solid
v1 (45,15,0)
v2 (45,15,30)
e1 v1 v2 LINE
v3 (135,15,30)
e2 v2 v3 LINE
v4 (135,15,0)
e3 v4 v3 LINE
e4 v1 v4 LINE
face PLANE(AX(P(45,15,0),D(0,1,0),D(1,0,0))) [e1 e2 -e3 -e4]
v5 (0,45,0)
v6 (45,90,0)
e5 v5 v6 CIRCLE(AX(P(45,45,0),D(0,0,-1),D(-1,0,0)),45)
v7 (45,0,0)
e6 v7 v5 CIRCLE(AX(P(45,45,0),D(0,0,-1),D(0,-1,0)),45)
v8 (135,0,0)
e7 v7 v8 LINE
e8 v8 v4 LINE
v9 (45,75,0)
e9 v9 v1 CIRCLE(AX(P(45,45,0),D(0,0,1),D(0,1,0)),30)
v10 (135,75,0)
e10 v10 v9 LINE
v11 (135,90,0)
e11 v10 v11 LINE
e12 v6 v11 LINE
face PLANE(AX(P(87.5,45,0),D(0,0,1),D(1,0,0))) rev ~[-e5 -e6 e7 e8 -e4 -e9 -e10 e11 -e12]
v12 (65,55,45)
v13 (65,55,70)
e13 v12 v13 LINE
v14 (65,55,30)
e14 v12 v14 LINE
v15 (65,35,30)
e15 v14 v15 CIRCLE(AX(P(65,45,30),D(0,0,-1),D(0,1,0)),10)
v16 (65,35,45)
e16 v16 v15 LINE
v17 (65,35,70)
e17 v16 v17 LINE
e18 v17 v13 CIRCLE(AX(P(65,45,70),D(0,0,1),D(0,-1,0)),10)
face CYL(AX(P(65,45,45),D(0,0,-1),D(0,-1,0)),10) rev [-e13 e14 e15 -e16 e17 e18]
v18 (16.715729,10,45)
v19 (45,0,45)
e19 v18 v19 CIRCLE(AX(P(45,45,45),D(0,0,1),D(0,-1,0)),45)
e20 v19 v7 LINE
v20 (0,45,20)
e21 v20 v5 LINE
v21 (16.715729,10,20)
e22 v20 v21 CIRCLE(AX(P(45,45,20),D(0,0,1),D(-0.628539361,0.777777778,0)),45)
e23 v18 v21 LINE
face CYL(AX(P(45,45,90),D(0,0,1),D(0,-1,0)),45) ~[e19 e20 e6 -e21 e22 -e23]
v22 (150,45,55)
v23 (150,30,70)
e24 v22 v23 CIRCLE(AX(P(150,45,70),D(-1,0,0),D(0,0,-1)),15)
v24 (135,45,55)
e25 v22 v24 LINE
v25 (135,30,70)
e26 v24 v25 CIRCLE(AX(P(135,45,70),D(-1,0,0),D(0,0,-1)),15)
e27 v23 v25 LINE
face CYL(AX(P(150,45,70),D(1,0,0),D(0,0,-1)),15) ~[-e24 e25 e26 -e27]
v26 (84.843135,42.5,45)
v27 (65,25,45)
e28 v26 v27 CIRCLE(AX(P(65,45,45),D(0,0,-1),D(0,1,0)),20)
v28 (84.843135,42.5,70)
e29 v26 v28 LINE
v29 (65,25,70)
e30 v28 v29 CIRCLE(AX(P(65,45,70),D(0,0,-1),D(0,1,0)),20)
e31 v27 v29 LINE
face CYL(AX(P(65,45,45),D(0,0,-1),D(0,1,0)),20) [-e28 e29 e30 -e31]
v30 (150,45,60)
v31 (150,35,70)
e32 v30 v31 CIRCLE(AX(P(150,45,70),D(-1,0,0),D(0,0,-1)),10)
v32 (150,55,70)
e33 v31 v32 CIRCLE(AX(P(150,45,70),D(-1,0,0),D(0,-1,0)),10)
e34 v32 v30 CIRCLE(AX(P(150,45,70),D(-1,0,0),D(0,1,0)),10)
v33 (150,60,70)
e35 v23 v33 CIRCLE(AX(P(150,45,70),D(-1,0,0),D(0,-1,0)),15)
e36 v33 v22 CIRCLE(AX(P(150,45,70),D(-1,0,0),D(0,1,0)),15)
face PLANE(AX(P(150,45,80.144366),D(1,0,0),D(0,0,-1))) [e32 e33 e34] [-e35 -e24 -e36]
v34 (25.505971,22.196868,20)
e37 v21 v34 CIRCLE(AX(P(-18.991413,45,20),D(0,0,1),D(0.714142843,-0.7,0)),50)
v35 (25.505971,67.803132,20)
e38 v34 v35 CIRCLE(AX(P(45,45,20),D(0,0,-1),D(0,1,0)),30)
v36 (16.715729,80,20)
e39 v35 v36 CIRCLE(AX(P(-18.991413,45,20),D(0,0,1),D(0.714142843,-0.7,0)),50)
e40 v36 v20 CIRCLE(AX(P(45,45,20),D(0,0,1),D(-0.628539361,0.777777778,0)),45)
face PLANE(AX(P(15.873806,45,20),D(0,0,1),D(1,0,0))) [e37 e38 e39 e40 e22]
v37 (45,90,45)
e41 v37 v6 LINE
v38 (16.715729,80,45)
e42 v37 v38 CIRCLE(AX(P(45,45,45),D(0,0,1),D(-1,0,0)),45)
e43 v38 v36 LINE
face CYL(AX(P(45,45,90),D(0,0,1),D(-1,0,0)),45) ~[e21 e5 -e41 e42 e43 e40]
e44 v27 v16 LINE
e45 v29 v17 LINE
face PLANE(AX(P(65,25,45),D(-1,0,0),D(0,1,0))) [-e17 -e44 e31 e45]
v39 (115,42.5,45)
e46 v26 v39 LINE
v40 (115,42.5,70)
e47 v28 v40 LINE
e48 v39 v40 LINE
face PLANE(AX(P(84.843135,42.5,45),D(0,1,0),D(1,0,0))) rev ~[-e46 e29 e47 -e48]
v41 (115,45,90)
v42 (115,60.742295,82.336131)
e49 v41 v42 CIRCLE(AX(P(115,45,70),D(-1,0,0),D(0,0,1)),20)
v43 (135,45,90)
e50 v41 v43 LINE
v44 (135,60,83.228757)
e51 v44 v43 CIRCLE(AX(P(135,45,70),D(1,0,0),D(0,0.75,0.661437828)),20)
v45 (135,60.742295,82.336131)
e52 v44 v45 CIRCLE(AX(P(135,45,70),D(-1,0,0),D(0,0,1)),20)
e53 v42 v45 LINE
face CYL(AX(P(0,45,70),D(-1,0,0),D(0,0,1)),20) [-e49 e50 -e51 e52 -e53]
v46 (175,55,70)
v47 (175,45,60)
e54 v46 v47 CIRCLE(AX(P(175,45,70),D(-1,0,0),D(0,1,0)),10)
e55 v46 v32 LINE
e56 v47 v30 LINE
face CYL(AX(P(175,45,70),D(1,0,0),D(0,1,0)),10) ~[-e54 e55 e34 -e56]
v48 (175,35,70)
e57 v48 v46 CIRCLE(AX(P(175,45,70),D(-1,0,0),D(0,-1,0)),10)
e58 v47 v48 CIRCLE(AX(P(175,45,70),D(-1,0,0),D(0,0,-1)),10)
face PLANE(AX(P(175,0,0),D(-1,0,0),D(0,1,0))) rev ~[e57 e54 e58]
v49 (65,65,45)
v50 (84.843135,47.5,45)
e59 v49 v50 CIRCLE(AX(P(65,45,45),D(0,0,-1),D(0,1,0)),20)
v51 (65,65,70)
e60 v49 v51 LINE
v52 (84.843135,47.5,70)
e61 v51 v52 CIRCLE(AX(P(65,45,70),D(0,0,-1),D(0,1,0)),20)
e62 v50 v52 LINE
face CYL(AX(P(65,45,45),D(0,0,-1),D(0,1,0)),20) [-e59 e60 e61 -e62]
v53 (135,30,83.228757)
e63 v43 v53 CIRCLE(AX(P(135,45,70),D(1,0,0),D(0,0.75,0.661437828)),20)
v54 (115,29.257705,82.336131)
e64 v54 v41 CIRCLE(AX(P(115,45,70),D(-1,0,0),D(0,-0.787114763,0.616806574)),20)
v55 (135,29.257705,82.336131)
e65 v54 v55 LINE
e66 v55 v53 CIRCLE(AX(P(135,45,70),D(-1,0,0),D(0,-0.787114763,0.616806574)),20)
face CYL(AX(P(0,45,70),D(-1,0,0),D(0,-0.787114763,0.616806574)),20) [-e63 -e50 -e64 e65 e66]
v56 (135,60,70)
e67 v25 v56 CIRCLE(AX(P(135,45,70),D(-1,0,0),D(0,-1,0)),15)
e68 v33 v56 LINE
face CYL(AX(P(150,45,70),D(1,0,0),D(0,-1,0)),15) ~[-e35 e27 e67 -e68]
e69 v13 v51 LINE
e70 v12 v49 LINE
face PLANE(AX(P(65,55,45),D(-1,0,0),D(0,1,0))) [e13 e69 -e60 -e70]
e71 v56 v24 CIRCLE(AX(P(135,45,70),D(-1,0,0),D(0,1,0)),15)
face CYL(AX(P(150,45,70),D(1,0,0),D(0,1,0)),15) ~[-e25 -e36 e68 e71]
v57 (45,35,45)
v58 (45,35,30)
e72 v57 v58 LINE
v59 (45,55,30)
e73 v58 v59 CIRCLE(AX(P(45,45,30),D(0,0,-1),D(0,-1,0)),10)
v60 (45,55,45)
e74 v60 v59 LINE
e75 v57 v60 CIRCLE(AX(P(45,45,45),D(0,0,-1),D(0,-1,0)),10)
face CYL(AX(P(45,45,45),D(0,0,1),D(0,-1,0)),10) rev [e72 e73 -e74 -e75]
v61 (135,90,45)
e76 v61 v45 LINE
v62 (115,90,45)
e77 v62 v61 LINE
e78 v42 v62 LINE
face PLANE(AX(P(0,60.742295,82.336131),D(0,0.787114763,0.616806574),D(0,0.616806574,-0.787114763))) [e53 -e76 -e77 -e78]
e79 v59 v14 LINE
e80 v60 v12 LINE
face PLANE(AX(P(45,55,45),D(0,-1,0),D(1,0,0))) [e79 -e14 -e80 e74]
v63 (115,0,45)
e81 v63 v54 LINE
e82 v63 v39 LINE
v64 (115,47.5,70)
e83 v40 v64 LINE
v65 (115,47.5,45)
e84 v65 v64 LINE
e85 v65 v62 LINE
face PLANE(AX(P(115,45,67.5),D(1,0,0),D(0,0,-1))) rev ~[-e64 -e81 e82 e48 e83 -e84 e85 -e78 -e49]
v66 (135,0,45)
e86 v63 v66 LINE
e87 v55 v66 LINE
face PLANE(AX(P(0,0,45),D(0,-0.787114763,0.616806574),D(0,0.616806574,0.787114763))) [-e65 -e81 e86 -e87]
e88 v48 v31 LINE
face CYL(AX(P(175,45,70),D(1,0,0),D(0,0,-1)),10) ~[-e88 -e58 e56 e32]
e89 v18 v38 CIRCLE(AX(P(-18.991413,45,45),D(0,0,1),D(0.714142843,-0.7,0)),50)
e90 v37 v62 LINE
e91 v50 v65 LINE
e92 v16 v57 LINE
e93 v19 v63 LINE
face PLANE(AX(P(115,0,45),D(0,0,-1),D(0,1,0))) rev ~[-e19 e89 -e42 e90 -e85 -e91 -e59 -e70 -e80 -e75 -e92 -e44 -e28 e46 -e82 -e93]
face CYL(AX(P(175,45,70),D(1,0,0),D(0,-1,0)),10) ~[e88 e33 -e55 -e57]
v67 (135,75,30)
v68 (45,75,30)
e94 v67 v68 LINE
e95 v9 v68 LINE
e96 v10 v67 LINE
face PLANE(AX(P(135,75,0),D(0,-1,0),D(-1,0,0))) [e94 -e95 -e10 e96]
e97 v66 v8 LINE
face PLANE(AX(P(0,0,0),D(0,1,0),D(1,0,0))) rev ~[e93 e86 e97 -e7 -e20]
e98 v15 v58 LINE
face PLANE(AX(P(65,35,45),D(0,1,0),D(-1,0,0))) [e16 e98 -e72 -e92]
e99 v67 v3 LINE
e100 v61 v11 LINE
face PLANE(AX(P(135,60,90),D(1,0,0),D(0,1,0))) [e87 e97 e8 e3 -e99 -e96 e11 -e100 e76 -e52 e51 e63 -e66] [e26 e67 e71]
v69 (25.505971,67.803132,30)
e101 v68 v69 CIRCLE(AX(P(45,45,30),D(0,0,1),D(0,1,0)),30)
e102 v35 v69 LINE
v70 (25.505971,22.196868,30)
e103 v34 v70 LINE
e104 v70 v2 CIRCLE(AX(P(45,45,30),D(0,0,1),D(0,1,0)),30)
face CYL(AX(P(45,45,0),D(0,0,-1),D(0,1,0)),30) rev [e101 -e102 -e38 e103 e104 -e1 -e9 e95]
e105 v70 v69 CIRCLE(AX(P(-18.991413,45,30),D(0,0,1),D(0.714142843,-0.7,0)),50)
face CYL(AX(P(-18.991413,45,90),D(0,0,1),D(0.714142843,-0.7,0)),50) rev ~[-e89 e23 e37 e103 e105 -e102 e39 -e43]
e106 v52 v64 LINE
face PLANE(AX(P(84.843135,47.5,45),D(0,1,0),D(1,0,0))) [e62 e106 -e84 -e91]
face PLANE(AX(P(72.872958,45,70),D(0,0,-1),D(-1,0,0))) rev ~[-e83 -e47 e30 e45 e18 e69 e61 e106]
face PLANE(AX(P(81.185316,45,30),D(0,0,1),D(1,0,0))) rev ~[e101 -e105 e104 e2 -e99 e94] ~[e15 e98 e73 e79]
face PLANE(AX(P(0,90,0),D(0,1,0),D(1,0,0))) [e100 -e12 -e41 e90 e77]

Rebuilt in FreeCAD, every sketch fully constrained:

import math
import FreeCAD as App
import Part
import Sketcher

doc = App.newDocument("Part")
params = doc.addObject("Spreadsheet::Sheet", "Params")
for row, (alias, value) in enumerate([
    ("sketch1_width", "175 mm"),
    ("sketch1_height", "90 mm"),
    ("pad1_length", "90 mm"),
    ("sketch2_radius", "45 mm"),
    ("pocket1_length", "90 mm"),
    ("sketch3_width", "40 mm"),
    ("sketch3_height", "30 mm"),
    ("pocket2_length", "90 mm"),
    ("sketch4_width", "25 mm"),
    ("sketch4_height", "5 mm"),
    ("pocket3_length", "90 mm"),
    ("sketch5_radius", "50 mm"),
    ("sketch5_radius2", "45 mm"),
    ("pocket4_length", "70 mm"),
    ("sketch6_radius", "20 mm"),
    ("sketch6_width", "45 mm"),
    ("pocket5_length", "308 mm"),
    ("sketch7_radius", "30 mm"),
    ("sketch7_width", "90 mm"),
    ("pocket6_length", "30 mm"),
    ("sketch8_radius", "20 mm"),
    ("sketch8_radius2", "10 mm"),
    ("sketch8_height", "70 mm"),
    ("pocket7_length", "25 mm"),
    ("sketch9_radius", "20 mm"),
    ("sketch9_radius2", "15 mm"),
    ("sketch9_height", "70 mm"),
    ("pocket8_length", "15 mm"),
    ("sketch10_width", "90 mm"),
    ("sketch10_height", "45 mm"),
    ("pocket9_length", "154 mm"),
    ("sketch11_radius", "10 mm"),
    ("sketch11_radius2", "20 mm"),
    ("pad2_length", "25 mm"),
    ("sketch12_radius", "10 mm"),
    ("sketch12_width", "20 mm"),
    ("pocket10_length", "15 mm"),
    ("sketch13_height", "5 mm"),
    ("pad3_length", "25 mm"),
], start=1):
    params.set(f"A{row}", alias)
    params.set(f"B{row}", "=" + value)
    params.setAlias(f"B{row}", alias)

body = doc.addObject("PartDesign::Body", "Body")

# Sketch on XY plane
sketch1 = doc.addObject("Sketcher::SketchObject", "Sketch")
body.addObject(sketch1)
sketch1.AttachmentSupport = (doc.XY_Plane, [""])
sketch1.MapMode = "FlatFace"
sketch1.addGeometry(Part.LineSegment(App.Vector(0, 90, 0), App.Vector(0, 0, 0)), False)
sketch1.addGeometry(Part.LineSegment(App.Vector(0, 0, 0), App.Vector(175, 0, 0)), False)
sketch1.addGeometry(Part.LineSegment(App.Vector(175, 0, 0), App.Vector(175, 90, 0)), False)
sketch1.addGeometry(Part.LineSegment(App.Vector(175, 90, 0), App.Vector(0, 90, 0)), False)
sketch1.addConstraint(Sketcher.Constraint("Coincident", 0, 2, 1, 1))
sketch1.addConstraint(Sketcher.Constraint("Coincident", 1, 2, 2, 1))
sketch1.addConstraint(Sketcher.Constraint("Coincident", 2, 2, 3, 1))
sketch1.addConstraint(Sketcher.Constraint("Coincident", 3, 2, 0, 1))
sketch1.addConstraint(Sketcher.Constraint("Vertical", 0))
sketch1.addConstraint(Sketcher.Constraint("Horizontal", 1))
sketch1.addConstraint(Sketcher.Constraint("Vertical", 2))
sketch1.addConstraint(Sketcher.Constraint("Horizontal", 3))
sketch1.addConstraint(Sketcher.Constraint("Coincident", 0, 2, -1, 1))
sketch1.addConstraint(Sketcher.Constraint("DistanceX", 1, 1, 1, 2, 175.0))
sketch1.addConstraint(Sketcher.Constraint("DistanceY", 0, 2, 0, 1, 90.0))
sketch1.setExpression("Constraints[9]", "Params.sketch1_width")
sketch1.setExpression("Constraints[10]", "Params.sketch1_height")
pad1 = doc.addObject("PartDesign::Pad", "Pad")
body.addObject(pad1)
pad1.Profile = sketch1
pad1.setExpression("Length", "Params.pad1_length")

# Sketch on XY plane
sketch2 = doc.addObject("Sketcher::SketchObject", "Sketch001")
body.addObject(sketch2)
sketch2.AttachmentSupport = (doc.XY_Plane, [""])
sketch2.MapMode = "FlatFace"
sketch2.AttachmentOffset = App.Placement(App.Vector(0, 0, 90), App.Rotation())
sketch2.addGeometry(Part.LineSegment(App.Vector(45, 90, 0), App.Vector(0, 90, 0)), False)
sketch2.addGeometry(Part.LineSegment(App.Vector(0, 90, 0), App.Vector(0, 45, 0)), False)
sketch2.addGeometry(Part.ArcOfCircle(Part.Circle(App.Vector(45, 45, 0), App.Vector(0, 0, 1), 45), math.radians(90), math.radians(180)), False)
sketch2.addGeometry(Part.ArcOfCircle(Part.Circle(App.Vector(45, 45, 0), App.Vector(0, 0, 1), 45), math.radians(-180), math.radians(-90)), False)
sketch2.addGeometry(Part.LineSegment(App.Vector(0, 45, 0), App.Vector(0, 0, 0)), False)
sketch2.addGeometry(Part.LineSegment(App.Vector(0, 0, 0), App.Vector(45, 0, 0)), False)
sketch2.addConstraint(Sketcher.Constraint("Coincident", 0, 2, 1, 1))
sketch2.addConstraint(Sketcher.Constraint("Tangent", 1, 2, 2, 2))
sketch2.addConstraint(Sketcher.Constraint("Tangent", 2, 1, 0, 1))
sketch2.addConstraint(Sketcher.Constraint("Tangent", 3, 1, 4, 1))
sketch2.addConstraint(Sketcher.Constraint("Coincident", 4, 2, 5, 1))
sketch2.addConstraint(Sketcher.Constraint("Tangent", 5, 2, 3, 2))
sketch2.addConstraint(Sketcher.Constraint("Horizontal", 0))
sketch2.addConstraint(Sketcher.Constraint("Vertical", 1))
sketch2.addConstraint(Sketcher.Constraint("Vertical", 4))
sketch2.addConstraint(Sketcher.Constraint("Horizontal", 5))
sketch2.addConstraint(Sketcher.Constraint("Coincident", 4, 2, -1, 1))
sketch2.addConstraint(Sketcher.Constraint("Coincident", 3, 3, 2, 3))
sketch2.addConstraint(Sketcher.Constraint("Equal", 2, 3))
sketch2.addConstraint(Sketcher.Constraint("Radius", 2, 45.0))
sketch2.setExpression("Constraints[13]", "Params.sketch2_radius")
pocket1 = doc.addObject("PartDesign::Pocket", "Pocket")
body.addObject(pocket1)
pocket1.Profile = sketch2
pocket1.setExpression("Length", "Params.pocket1_length")

# Sketch on XY plane
sketch3 = doc.addObject("Sketcher::SketchObject", "Sketch002")
body.addObject(sketch3)
sketch3.AttachmentSupport = (doc.XY_Plane, [""])
sketch3.MapMode = "FlatFace"
sketch3.AttachmentOffset = App.Placement(App.Vector(0, 0, 90), App.Rotation())
sketch3.addGeometry(Part.LineSegment(App.Vector(135, 90, 0), App.Vector(135, 60, 0)), False)
sketch3.addGeometry(Part.LineSegment(App.Vector(135, 60, 0), App.Vector(175, 60, 0)), False)
sketch3.addGeometry(Part.LineSegment(App.Vector(175, 60, 0), App.Vector(175, 90, 0)), False)
sketch3.addGeometry(Part.LineSegment(App.Vector(175, 90, 0), App.Vector(135, 90, 0)), False)
sketch3.addGeometry(Part.LineSegment(App.Vector(135, 30, 0), App.Vector(135, 0, 0)), False)
sketch3.addGeometry(Part.LineSegment(App.Vector(135, 0, 0), App.Vector(175, 0, 0)), False)
sketch3.addGeometry(Part.LineSegment(App.Vector(175, 0, 0), App.Vector(175, 30, 0)), False)
sketch3.addGeometry(Part.LineSegment(App.Vector(175, 30, 0), App.Vector(135, 30, 0)), False)
sketch3.addConstraint(Sketcher.Constraint("Coincident", 0, 2, 1, 1))
sketch3.addConstraint(Sketcher.Constraint("Coincident", 1, 2, 2, 1))
sketch3.addConstraint(Sketcher.Constraint("Coincident", 2, 2, 3, 1))
sketch3.addConstraint(Sketcher.Constraint("Coincident", 3, 2, 0, 1))
sketch3.addConstraint(Sketcher.Constraint("Coincident", 4, 2, 5, 1))
sketch3.addConstraint(Sketcher.Constraint("Coincident", 5, 2, 6, 1))
sketch3.addConstraint(Sketcher.Constraint("Coincident", 6, 2, 7, 1))
sketch3.addConstraint(Sketcher.Constraint("Coincident", 7, 2, 4, 1))
sketch3.addConstraint(Sketcher.Constraint("Vertical", 0))
sketch3.addConstraint(Sketcher.Constraint("Horizontal", 1))
sketch3.addConstraint(Sketcher.Constraint("Vertical", 2))
sketch3.addConstraint(Sketcher.Constraint("Horizontal", 3))
sketch3.addConstraint(Sketcher.Constraint("Vertical", 4))
sketch3.addConstraint(Sketcher.Constraint("Horizontal", 5))
sketch3.addConstraint(Sketcher.Constraint("Vertical", 6))
sketch3.addConstraint(Sketcher.Constraint("Horizontal", 7))
sketch3.addConstraint(Sketcher.Constraint("PointOnObject", 4, 2, -1))
sketch3.addConstraint(Sketcher.Constraint("Vertical", 3, 2, 4, 2))
sketch3.addConstraint(Sketcher.Constraint("Vertical", 2, 2, 5, 2))
sketch3.addConstraint(Sketcher.Constraint("Equal", 2, 4))
sketch3.addConstraint(Sketcher.Constraint("DistanceX", 1, 1, 1, 2, 40.0))
sketch3.addConstraint(Sketcher.Constraint("DistanceY", 0, 2, 0, 1, 30.0))
sketch3.addConstraint(Sketcher.Constraint("DistanceX", -1, 1, 0, 2, 135.0))
sketch3.addConstraint(Sketcher.Constraint("DistanceY", -1, 1, 0, 2, 60.0))
sketch3.setExpression("Constraints[20]", "Params.sketch3_width")
sketch3.setExpression("Constraints[21]", "Params.sketch3_height")
pocket2 = doc.addObject("PartDesign::Pocket", "Pocket001")
body.addObject(pocket2)
pocket2.Profile = sketch3
pocket2.setExpression("Length", "Params.pocket2_length")

# Sketch on XY plane
sketch4 = doc.addObject("Sketcher::SketchObject", "Sketch003")
body.addObject(sketch4)
sketch4.AttachmentSupport = (doc.XY_Plane, [""])
sketch4.MapMode = "FlatFace"
sketch4.AttachmentOffset = App.Placement(App.Vector(0, 0, 90), App.Rotation())
sketch4.addGeometry(Part.LineSegment(App.Vector(150, 60, 0), App.Vector(150, 55, 0)), False)
sketch4.addGeometry(Part.LineSegment(App.Vector(150, 55, 0), App.Vector(175, 55, 0)), False)
sketch4.addGeometry(Part.LineSegment(App.Vector(175, 55, 0), App.Vector(175, 60, 0)), False)
sketch4.addGeometry(Part.LineSegment(App.Vector(175, 60, 0), App.Vector(150, 60, 0)), False)
sketch4.addGeometry(Part.LineSegment(App.Vector(150, 35, 0), App.Vector(150, 30, 0)), False)
sketch4.addGeometry(Part.LineSegment(App.Vector(150, 30, 0), App.Vector(175, 30, 0)), False)
sketch4.addGeometry(Part.LineSegment(App.Vector(175, 30, 0), App.Vector(175, 35, 0)), False)
sketch4.addGeometry(Part.LineSegment(App.Vector(175, 35, 0), App.Vector(150, 35, 0)), False)
sketch4.addConstraint(Sketcher.Constraint("Coincident", 0, 2, 1, 1))
sketch4.addConstraint(Sketcher.Constraint("Coincident", 1, 2, 2, 1))
sketch4.addConstraint(Sketcher.Constraint("Coincident", 2, 2, 3, 1))
sketch4.addConstraint(Sketcher.Constraint("Coincident", 3, 2, 0, 1))
sketch4.addConstraint(Sketcher.Constraint("Coincident", 4, 2, 5, 1))
sketch4.addConstraint(Sketcher.Constraint("Coincident", 5, 2, 6, 1))
sketch4.addConstraint(Sketcher.Constraint("Coincident", 6, 2, 7, 1))
sketch4.addConstraint(Sketcher.Constraint("Coincident", 7, 2, 4, 1))
sketch4.addConstraint(Sketcher.Constraint("Vertical", 0))
sketch4.addConstraint(Sketcher.Constraint("Horizontal", 1))
sketch4.addConstraint(Sketcher.Constraint("Vertical", 2))
sketch4.addConstraint(Sketcher.Constraint("Horizontal", 3))
sketch4.addConstraint(Sketcher.Constraint("Vertical", 4))
sketch4.addConstraint(Sketcher.Constraint("Horizontal", 5))
sketch4.addConstraint(Sketcher.Constraint("Vertical", 6))
sketch4.addConstraint(Sketcher.Constraint("Horizontal", 7))
sketch4.addConstraint(Sketcher.Constraint("Vertical", 3, 2, 4, 2))
sketch4.addConstraint(Sketcher.Constraint("Vertical", 2, 2, 5, 2))
sketch4.addConstraint(Sketcher.Constraint("Equal", 2, 4))
sketch4.addConstraint(Sketcher.Constraint("DistanceX", 1, 1, 1, 2, 25.0))
sketch4.addConstraint(Sketcher.Constraint("DistanceY", 0, 2, 0, 1, 5.0))
sketch4.addConstraint(Sketcher.Constraint("DistanceX", -1, 1, 0, 2, 150.0))
sketch4.addConstraint(Sketcher.Constraint("DistanceY", -1, 1, 0, 2, 55.0))
sketch4.addConstraint(Sketcher.Constraint("DistanceY", -1, 1, 4, 2, 30.0))
sketch4.setExpression("Constraints[19]", "Params.sketch4_width")
sketch4.setExpression("Constraints[20]", "Params.sketch4_height")
pocket3 = doc.addObject("PartDesign::Pocket", "Pocket002")
body.addObject(pocket3)
pocket3.Profile = sketch4
pocket3.setExpression("Length", "Params.pocket3_length")

# Sketch on XY plane
sketch5 = doc.addObject("Sketcher::SketchObject", "Sketch004")
body.addObject(sketch5)
sketch5.AttachmentSupport = (doc.XY_Plane, [""])
sketch5.MapMode = "FlatFace"
sketch5.AttachmentOffset = App.Placement(App.Vector(0, 0, 90), App.Rotation())
sketch5.addGeometry(Part.ArcOfCircle(Part.Circle(App.Vector(-18.991413, 45, 0), App.Vector(0, 0, 1), 50), math.radians(-44.427004), math.radians(44.427004)), False)
sketch5.addGeometry(Part.ArcOfCircle(Part.Circle(App.Vector(45, 45, 0), App.Vector(0, 0, 1), 45), math.radians(128.942441), math.radians(231.057559)), False)
sketch5.addConstraint(Sketcher.Constraint("Coincident", 0, 1, 1, 2))
sketch5.addConstraint(Sketcher.Constraint("Coincident", 1, 1, 0, 2))
sketch5.addConstraint(Sketcher.Constraint("Horizontal", 0, 3, 1, 3))
sketch5.addConstraint(Sketcher.Constraint("Radius", 0, 50.0))
sketch5.addConstraint(Sketcher.Constraint("Radius", 1, 45.0))
sketch5.addConstraint(Sketcher.Constraint("DistanceY", -1, 1, 0, 3, 45.0))
sketch5.addConstraint(Sketcher.Constraint("DistanceX", -1, 1, 1, 3, 45.0))
sketch5.addConstraint(Sketcher.Constraint("DistanceY", -1, 1, 0, 1, 10.0))
sketch5.setExpression("Constraints[3]", "Params.sketch5_radius")
sketch5.setExpression("Constraints[4]", "Params.sketch5_radius2")
pocket4 = doc.addObject("PartDesign::Pocket", "Pocket003")
body.addObject(pocket4)
pocket4.Profile = sketch5
pocket4.setExpression("Length", "Params.pocket4_length")

# Sketch on YZ plane
sketch6 = doc.addObject("Sketcher::SketchObject", "Sketch005")
body.addObject(sketch6)
sketch6.AttachmentSupport = (doc.YZ_Plane, [""])
sketch6.MapMode = "FlatFace"
sketch6.addGeometry(Part.LineSegment(App.Vector(60.742295, 82.336131, 0), App.Vector(90, 45, 0)), False)
sketch6.addGeometry(Part.LineSegment(App.Vector(90, 45, 0), App.Vector(90, 90, 0)), False)
sketch6.addGeometry(Part.LineSegment(App.Vector(90, 90, 0), App.Vector(45, 90, 0)), False)
sketch6.addGeometry(Part.ArcOfCircle(Part.Circle(App.Vector(45, 70, 0), App.Vector(0, 0, 1), 20), math.radians(38.083307), math.radians(90)), False)
sketch6.addGeometry(Part.ArcOfCircle(Part.Circle(App.Vector(45, 70, 0), App.Vector(0, 0, 1), 20), math.radians(90), math.radians(141.916693)), False)
sketch6.addGeometry(Part.LineSegment(App.Vector(45, 90, 0), App.Vector(0, 90, 0)), False)
sketch6.addGeometry(Part.LineSegment(App.Vector(0, 90, 0), App.Vector(0, 45, 0)), False)
sketch6.addGeometry(Part.LineSegment(App.Vector(0, 45, 0), App.Vector(29.257705, 82.336131, 0)), False)
sketch6.addConstraint(Sketcher.Constraint("Coincident", 0, 2, 1, 1))
sketch6.addConstraint(Sketcher.Constraint("Coincident", 1, 2, 2, 1))
sketch6.addConstraint(Sketcher.Constraint("Tangent", 2, 2, 3, 2))
sketch6.addConstraint(Sketcher.Constraint("Tangent", 3, 1, 0, 1))
sketch6.addConstraint(Sketcher.Constraint("Tangent", 4, 1, 5, 1))
sketch6.addConstraint(Sketcher.Constraint("Coincident", 5, 2, 6, 1))
sketch6.addConstraint(Sketcher.Constraint("Coincident", 6, 2, 7, 1))
sketch6.addConstraint(Sketcher.Constraint("Tangent", 7, 2, 4, 2))
sketch6.addConstraint(Sketcher.Constraint("Vertical", 1))
sketch6.addConstraint(Sketcher.Constraint("Horizontal", 2))
sketch6.addConstraint(Sketcher.Constraint("Horizontal", 5))
sketch6.addConstraint(Sketcher.Constraint("Vertical", 6))
sketch6.addConstraint(Sketcher.Constraint("Coincident", 4, 3, 3, 3))
sketch6.addConstraint(Sketcher.Constraint("Equal", 3, 4))
sketch6.addConstraint(Sketcher.Constraint("PointOnObject", 5, 2, -2))
sketch6.addConstraint(Sketcher.Constraint("Horizontal", 0, 2, 6, 2))
sketch6.addConstraint(Sketcher.Constraint("Horizontal", 3, 1, 7, 2))
sketch6.addConstraint(Sketcher.Constraint("Equal", 5, 1))
sketch6.addConstraint(Sketcher.Constraint("Radius", 3, 20.0))
sketch6.addConstraint(Sketcher.Constraint("DistanceX", 2, 2, 2, 1, 45.0))
sketch6.addConstraint(Sketcher.Constraint("DistanceY", -1, 1, 3, 3, 70.0))
sketch6.setExpression("Constraints[18]", "Params.sketch6_radius")
sketch6.setExpression("Constraints[19]", "Params.sketch6_width")
pocket5 = doc.addObject("PartDesign::Pocket", "Pocket004")
body.addObject(pocket5)
pocket5.Profile = sketch6
pocket5.setExpression("Length", "Params.pocket5_length")
pocket5.Reversed = True

# Sketch on XY plane
sketch7 = doc.addObject("Sketcher::SketchObject", "Sketch006")
body.addObject(sketch7)
sketch7.AttachmentSupport = (doc.XY_Plane, [""])
sketch7.MapMode = "FlatFace"
sketch7.addGeometry(Part.LineSegment(App.Vector(45, 75, 0), App.Vector(135, 75, 0)), False)
sketch7.addGeometry(Part.LineSegment(App.Vector(135, 75, 0), App.Vector(135, 15, 0)), False)
sketch7.addGeometry(Part.LineSegment(App.Vector(135, 15, 0), App.Vector(45, 15, 0)), False)
sketch7.addGeometry(Part.ArcOfCircle(Part.Circle(App.Vector(45, 45, 0), App.Vector(0, 0, 1), 30), math.radians(90), math.radians(270)), False)
sketch7.addConstraint(Sketcher.Constraint("Coincident", 0, 2, 1, 1))
sketch7.addConstraint(Sketcher.Constraint("Coincident", 1, 2, 2, 1))
sketch7.addConstraint(Sketcher.Constraint("Tangent", 2, 2, 3, 2))
sketch7.addConstraint(Sketcher.Constraint("Tangent", 3, 1, 0, 1))
sketch7.addConstraint(Sketcher.Constraint("Horizontal", 0))
sketch7.addConstraint(Sketcher.Constraint("Vertical", 1))
sketch7.addConstraint(Sketcher.Constraint("Horizontal", 2))
sketch7.addConstraint(Sketcher.Constraint("Radius", 3, 30.0))
sketch7.addConstraint(Sketcher.Constraint("DistanceX", 0, 1, 0, 2, 90.0))
sketch7.addConstraint(Sketcher.Constraint("DistanceX", -1, 1, 3, 3, 45.0))
sketch7.addConstraint(Sketcher.Constraint("DistanceY", -1, 1, 3, 3, 45.0))
sketch7.setExpression("Constraints[7]", "Params.sketch7_radius")
sketch7.setExpression("Constraints[8]", "Params.sketch7_width")
pocket6 = doc.addObject("PartDesign::Pocket", "Pocket005")
body.addObject(pocket6)
pocket6.Profile = sketch7
pocket6.setExpression("Length", "Params.pocket6_length")
pocket6.Reversed = True

# Sketch on YZ plane
sketch8 = doc.addObject("Sketcher::SketchObject", "Sketch007")
body.addObject(sketch8)
sketch8.AttachmentSupport = (doc.YZ_Plane, [""])
sketch8.MapMode = "FlatFace"
sketch8.AttachmentOffset = App.Placement(App.Vector(0, 0, 175), App.Rotation())
sketch8.addGeometry(Part.LineSegment(App.Vector(55, 70, 0), App.Vector(55, 87.320508, 0)), False)
sketch8.addGeometry(Part.ArcOfCircle(Part.Circle(App.Vector(45, 70, 0), App.Vector(0, 0, 1), 20), math.radians(60), math.radians(120)), False)
sketch8.addGeometry(Part.LineSegment(App.Vector(35, 87.320508, 0), App.Vector(35, 70, 0)), False)
sketch8.addGeometry(Part.ArcOfCircle(Part.Circle(App.Vector(45, 70, 0), App.Vector(0, 0, 1), 10), math.radians(0), math.radians(180)), False)
sketch8.addGeometry(Part.LineSegment(App.Vector(55, 0, 0), App.Vector(55, 70, 0)), False)
sketch8.addGeometry(Part.ArcOfCircle(Part.Circle(App.Vector(45, 70, 0), App.Vector(0, 0, 1), 10), math.radians(-90), math.radians(0)), False)
sketch8.addGeometry(Part.ArcOfCircle(Part.Circle(App.Vector(45, 70, 0), App.Vector(0, 0, 1), 10), math.radians(180), math.radians(270)), False)
sketch8.addGeometry(Part.LineSegment(App.Vector(35, 70, 0), App.Vector(35, 0, 0)), False)
sketch8.addGeometry(Part.LineSegment(App.Vector(35, 0, 0), App.Vector(55, 0, 0)), False)
sketch8.addConstraint(Sketcher.Constraint("Coincident", 0, 2, 1, 1))
sketch8.addConstraint(Sketcher.Constraint("Coincident", 1, 2, 2, 1))
sketch8.addConstraint(Sketcher.Constraint("Tangent", 2, 2, 3, 2))
sketch8.addConstraint(Sketcher.Constraint("Tangent", 3, 1, 0, 1))
sketch8.addConstraint(Sketcher.Constraint("Tangent", 4, 2, 5, 2))
sketch8.addConstraint(Sketcher.Constraint("Tangent", 5, 1, 6, 2))
sketch8.addConstraint(Sketcher.Constraint("Tangent", 6, 1, 7, 1))
sketch8.addConstraint(Sketcher.Constraint("Coincident", 7, 2, 8, 1))
sketch8.addConstraint(Sketcher.Constraint("Coincident", 8, 2, 4, 1))
sketch8.addConstraint(Sketcher.Constraint("Vertical", 0))
sketch8.addConstraint(Sketcher.Constraint("Vertical", 2))
sketch8.addConstraint(Sketcher.Constraint("Vertical", 4))
sketch8.addConstraint(Sketcher.Constraint("Vertical", 7))
sketch8.addConstraint(Sketcher.Constraint("Horizontal", 8))
sketch8.addConstraint(Sketcher.Constraint("Coincident", 3, 3, 1, 3))
sketch8.addConstraint(Sketcher.Constraint("Coincident", 5, 3, 1, 3))
sketch8.addConstraint(Sketcher.Constraint("Coincident", 6, 1, 2, 2))
sketch8.addConstraint(Sketcher.Constraint("PointOnObject", 7, 2, -1))
sketch8.addConstraint(Sketcher.Constraint("Vertical", 6, 3, 5, 1))
sketch8.addConstraint(Sketcher.Constraint("Radius", 1, 20.0))
sketch8.addConstraint(Sketcher.Constraint("Radius", 3, 10.0))
sketch8.addConstraint(Sketcher.Constraint("DistanceY", 4, 1, 4, 2, 70.0))
sketch8.addConstraint(Sketcher.Constraint("DistanceX", -1, 1, 1, 3, 45.0))
sketch8.setExpression("Constraints[19]", "Params.sketch8_radius")
sketch8.setExpression("Constraints[20]", "Params.sketch8_radius2")
sketch8.setExpression("Constraints[21]", "Params.sketch8_height")
pocket7 = doc.addObject("PartDesign::Pocket", "Pocket006")
body.addObject(pocket7)
pocket7.Profile = sketch8
pocket7.setExpression("Length", "Params.pocket7_length")

# Sketch on YZ plane
sketch9 = doc.addObject("Sketcher::SketchObject", "Sketch008")
body.addObject(sketch9)
sketch9.AttachmentSupport = (doc.YZ_Plane, [""])
sketch9.MapMode = "FlatFace"
sketch9.AttachmentOffset = App.Placement(App.Vector(0, 0, 150), App.Rotation())
sketch9.addGeometry(Part.LineSegment(App.Vector(60, 70, 0), App.Vector(60, 83.228757, 0)), False)
sketch9.addGeometry(Part.ArcOfCircle(Part.Circle(App.Vector(45, 70, 0), App.Vector(0, 0, 1), 20), math.radians(41.409622), math.radians(138.590378)), False)
sketch9.addGeometry(Part.LineSegment(App.Vector(30, 83.228757, 0), App.Vector(30, 70, 0)), False)
sketch9.addGeometry(Part.ArcOfCircle(Part.Circle(App.Vector(45, 70, 0), App.Vector(0, 0, 1), 15), math.radians(0), math.radians(180)), False)
sketch9.addGeometry(Part.LineSegment(App.Vector(60, 0, 0), App.Vector(60, 70, 0)), False)
sketch9.addGeometry(Part.ArcOfCircle(Part.Circle(App.Vector(45, 70, 0), App.Vector(0, 0, 1), 15), math.radians(-90), math.radians(0)), False)
sketch9.addGeometry(Part.ArcOfCircle(Part.Circle(App.Vector(45, 70, 0), App.Vector(0, 0, 1), 15), math.radians(180), math.radians(270)), False)
sketch9.addGeometry(Part.LineSegment(App.Vector(30, 70, 0), App.Vector(30, 0, 0)), False)
sketch9.addGeometry(Part.LineSegment(App.Vector(30, 0, 0), App.Vector(60, 0, 0)), False)
sketch9.addConstraint(Sketcher.Constraint("Coincident", 0, 2, 1, 1))
sketch9.addConstraint(Sketcher.Constraint("Coincident", 1, 2, 2, 1))
sketch9.addConstraint(Sketcher.Constraint("Tangent", 2, 2, 3, 2))
sketch9.addConstraint(Sketcher.Constraint("Tangent", 3, 1, 0, 1))
sketch9.addConstraint(Sketcher.Constraint("Tangent", 4, 2, 5, 2))
sketch9.addConstraint(Sketcher.Constraint("Tangent", 5, 1, 6, 2))
sketch9.addConstraint(Sketcher.Constraint("Tangent", 6, 1, 7, 1))
sketch9.addConstraint(Sketcher.Constraint("Coincident", 7, 2, 8, 1))
sketch9.addConstraint(Sketcher.Constraint("Coincident", 8, 2, 4, 1))
sketch9.addConstraint(Sketcher.Constraint("Vertical", 0))
sketch9.addConstraint(Sketcher.Constraint("Vertical", 2))
sketch9.addConstraint(Sketcher.Constraint("Vertical", 4))
sketch9.addConstraint(Sketcher.Constraint("Vertical", 7))
sketch9.addConstraint(Sketcher.Constraint("Horizontal", 8))
sketch9.addConstraint(Sketcher.Constraint("Coincident", 3, 3, 1, 3))
sketch9.addConstraint(Sketcher.Constraint("Coincident", 5, 3, 1, 3))
sketch9.addConstraint(Sketcher.Constraint("Coincident", 6, 1, 2, 2))
sketch9.addConstraint(Sketcher.Constraint("PointOnObject", 7, 2, -1))
sketch9.addConstraint(Sketcher.Constraint("Vertical", 6, 3, 5, 1))
sketch9.addConstraint(Sketcher.Constraint("Radius", 1, 20.0))
sketch9.addConstraint(Sketcher.Constraint("Radius", 3, 15.0))
sketch9.addConstraint(Sketcher.Constraint("DistanceY", 4, 1, 4, 2, 70.0))
sketch9.addConstraint(Sketcher.Constraint("DistanceX", -1, 1, 1, 3, 45.0))
sketch9.setExpression("Constraints[19]", "Params.sketch9_radius")
sketch9.setExpression("Constraints[20]", "Params.sketch9_radius2")
sketch9.setExpression("Constraints[21]", "Params.sketch9_height")
pocket8 = doc.addObject("PartDesign::Pocket", "Pocket007")
body.addObject(pocket8)
pocket8.Profile = sketch9
pocket8.setExpression("Length", "Params.pocket8_length")

# Sketch on YZ plane
sketch10 = doc.addObject("Sketcher::SketchObject", "Sketch009")
body.addObject(sketch10)
sketch10.AttachmentSupport = (doc.YZ_Plane, [""])
sketch10.MapMode = "FlatFace"
sketch10.AttachmentOffset = App.Placement(App.Vector(0, 0, 115), App.Rotation())
sketch10.addGeometry(Part.LineSegment(App.Vector(90, 90, 0), App.Vector(0, 90, 0)), False)
sketch10.addGeometry(Part.LineSegment(App.Vector(0, 90, 0), App.Vector(0, 45, 0)), False)
sketch10.addGeometry(Part.LineSegment(App.Vector(0, 45, 0), App.Vector(90, 45, 0)), False)
sketch10.addGeometry(Part.LineSegment(App.Vector(90, 45, 0), App.Vector(90, 90, 0)), False)
sketch10.addConstraint(Sketcher.Constraint("Coincident", 0, 2, 1, 1))
sketch10.addConstraint(Sketcher.Constraint("Coincident", 1, 2, 2, 1))
sketch10.addConstraint(Sketcher.Constraint("Coincident", 2, 2, 3, 1))
sketch10.addConstraint(Sketcher.Constraint("Coincident", 3, 2, 0, 1))
sketch10.addConstraint(Sketcher.Constraint("Horizontal", 0))
sketch10.addConstraint(Sketcher.Constraint("Vertical", 1))
sketch10.addConstraint(Sketcher.Constraint("Horizontal", 2))
sketch10.addConstraint(Sketcher.Constraint("Vertical", 3))
sketch10.addConstraint(Sketcher.Constraint("PointOnObject", 0, 2, -2))
sketch10.addConstraint(Sketcher.Constraint("DistanceX", 0, 2, 0, 1, 90.0))
sketch10.addConstraint(Sketcher.Constraint("DistanceY", 1, 2, 1, 1, 45.0))
sketch10.addConstraint(Sketcher.Constraint("DistanceY", -1, 1, 0, 2, 90.0))
sketch10.setExpression("Constraints[9]", "Params.sketch10_width")
sketch10.setExpression("Constraints[10]", "Params.sketch10_height")
pocket9 = doc.addObject("PartDesign::Pocket", "Pocket008")
body.addObject(pocket9)
pocket9.Profile = sketch10
pocket9.setExpression("Length", "Params.pocket9_length")

# Sketch on XY plane
sketch11 = doc.addObject("Sketcher::SketchObject", "Sketch010")
body.addObject(sketch11)
sketch11.AttachmentSupport = (doc.XY_Plane, [""])
sketch11.MapMode = "FlatFace"
sketch11.AttachmentOffset = App.Placement(App.Vector(0, 0, 45), App.Rotation())
sketch11.addGeometry(Part.LineSegment(App.Vector(65, 65, 0), App.Vector(65, 55, 0)), False)
sketch11.addGeometry(Part.ArcOfCircle(Part.Circle(App.Vector(65, 45, 0), App.Vector(0, 0, 1), 10), math.radians(-90), math.radians(90)), False)
sketch11.addGeometry(Part.LineSegment(App.Vector(65, 35, 0), App.Vector(65, 25, 0)), False)
sketch11.addGeometry(Part.ArcOfCircle(Part.Circle(App.Vector(65, 45, 0), App.Vector(0, 0, 1), 20), math.radians(-90), math.radians(90)), False)
sketch11.addConstraint(Sketcher.Constraint("Coincident", 0, 2, 1, 2))
sketch11.addConstraint(Sketcher.Constraint("Coincident", 1, 1, 2, 1))
sketch11.addConstraint(Sketcher.Constraint("Coincident", 2, 2, 3, 1))
sketch11.addConstraint(Sketcher.Constraint("Coincident", 3, 2, 0, 1))
sketch11.addConstraint(Sketcher.Constraint("Vertical", 0))
sketch11.addConstraint(Sketcher.Constraint("Vertical", 2))
sketch11.addConstraint(Sketcher.Constraint("Coincident", 3, 3, 1, 3))
sketch11.addConstraint(Sketcher.Constraint("Vertical", 3, 3, 0, 2))
sketch11.addConstraint(Sketcher.Constraint("Vertical", 0, 2, 1, 1))
sketch11.addConstraint(Sketcher.Constraint("Radius", 1, 10.0))
sketch11.addConstraint(Sketcher.Constraint("Radius", 3, 20.0))
sketch11.addConstraint(Sketcher.Constraint("DistanceX", -1, 1, 1, 3, 65.0))
sketch11.addConstraint(Sketcher.Constraint("DistanceY", -1, 1, 1, 3, 45.0))
sketch11.setExpression("Constraints[9]", "Params.sketch11_radius")
sketch11.setExpression("Constraints[10]", "Params.sketch11_radius2")
pad2 = doc.addObject("PartDesign::Pad", "Pad001")
body.addObject(pad2)
pad2.Profile = sketch11
pad2.setExpression("Length", "Params.pad2_length")

# Sketch on XY plane
sketch12 = doc.addObject("Sketcher::SketchObject", "Sketch011")
body.addObject(sketch12)
sketch12.AttachmentSupport = (doc.XY_Plane, [""])
sketch12.MapMode = "FlatFace"
sketch12.AttachmentOffset = App.Placement(App.Vector(0, 0, 45), App.Rotation())
sketch12.addGeometry(Part.LineSegment(App.Vector(45, 35, 0), App.Vector(65, 35, 0)), False)
sketch12.addGeometry(Part.ArcOfCircle(Part.Circle(App.Vector(65, 45, 0), App.Vector(0, 0, 1), 10), math.radians(-90), math.radians(90)), False)
sketch12.addGeometry(Part.LineSegment(App.Vector(65, 55, 0), App.Vector(45, 55, 0)), False)
sketch12.addGeometry(Part.ArcOfCircle(Part.Circle(App.Vector(45, 45, 0), App.Vector(0, 0, 1), 10), math.radians(90), math.radians(270)), False)
sketch12.addConstraint(Sketcher.Constraint("Tangent", 0, 2, 1, 1))
sketch12.addConstraint(Sketcher.Constraint("Tangent", 1, 2, 2, 1))
sketch12.addConstraint(Sketcher.Constraint("Tangent", 2, 2, 3, 1))
sketch12.addConstraint(Sketcher.Constraint("Tangent", 3, 2, 0, 1))
sketch12.addConstraint(Sketcher.Constraint("Horizontal", 0))
sketch12.addConstraint(Sketcher.Constraint("Horizontal", 2))
sketch12.addConstraint(Sketcher.Constraint("Radius", 1, 10.0))
sketch12.addConstraint(Sketcher.Constraint("DistanceX", 0, 1, 0, 2, 20.0))
sketch12.addConstraint(Sketcher.Constraint("DistanceX", -1, 1, 1, 3, 65.0))
sketch12.addConstraint(Sketcher.Constraint("DistanceY", -1, 1, 1, 3, 45.0))
sketch12.setExpression("Constraints[6]", "Params.sketch12_radius")
sketch12.setExpression("Constraints[7]", "Params.sketch12_width")
pocket10 = doc.addObject("PartDesign::Pocket", "Pocket009")
body.addObject(pocket10)
pocket10.Profile = sketch12
pocket10.setExpression("Length", "Params.pocket10_length")

# Sketch on XY plane
sketch13 = doc.addObject("Sketcher::SketchObject", "Sketch012")
body.addObject(sketch13)
sketch13.AttachmentSupport = (doc.XY_Plane, [""])
sketch13.MapMode = "FlatFace"
sketch13.AttachmentOffset = App.Placement(App.Vector(0, 0, 45), App.Rotation())
sketch13.addGeometry(Part.LineSegment(App.Vector(84.843135, 47.5, 0), App.Vector(84.843135, 42.5, 0)), False)
sketch13.addGeometry(Part.LineSegment(App.Vector(84.843135, 42.5, 0), App.Vector(115, 42.5, 0)), False)
sketch13.addGeometry(Part.LineSegment(App.Vector(115, 42.5, 0), App.Vector(115, 47.5, 0)), False)
sketch13.addGeometry(Part.LineSegment(App.Vector(115, 47.5, 0), App.Vector(84.843135, 47.5, 0)), False)
sketch13.addConstraint(Sketcher.Constraint("Coincident", 0, 2, 1, 1))
sketch13.addConstraint(Sketcher.Constraint("Coincident", 1, 2, 2, 1))
sketch13.addConstraint(Sketcher.Constraint("Coincident", 2, 2, 3, 1))
sketch13.addConstraint(Sketcher.Constraint("Coincident", 3, 2, 0, 1))
sketch13.addConstraint(Sketcher.Constraint("Vertical", 0))
sketch13.addConstraint(Sketcher.Constraint("Horizontal", 1))
sketch13.addConstraint(Sketcher.Constraint("Vertical", 2))
sketch13.addConstraint(Sketcher.Constraint("Horizontal", 3))
sketch13.addConstraint(Sketcher.Constraint("DistanceY", 0, 2, 0, 1, 5.0))
sketch13.addConstraint(Sketcher.Constraint("DistanceX", -1, 1, 1, 2, 115.0))
sketch13.addConstraint(Sketcher.Constraint("DistanceY", -1, 1, 0, 2, 42.5))
sketch13.addConstraint(Sketcher.Constraint("DistanceX", 1, 1, 1, 2, 30.156865))
sketch13.setExpression("Constraints[8]", "Params.sketch13_height")
pad3 = doc.addObject("PartDesign::Pad", "Pad002")
body.addObject(pad3)
pad3.Profile = sketch13
pad3.setExpression("Length", "Params.pad3_length")

doc.recompute()
